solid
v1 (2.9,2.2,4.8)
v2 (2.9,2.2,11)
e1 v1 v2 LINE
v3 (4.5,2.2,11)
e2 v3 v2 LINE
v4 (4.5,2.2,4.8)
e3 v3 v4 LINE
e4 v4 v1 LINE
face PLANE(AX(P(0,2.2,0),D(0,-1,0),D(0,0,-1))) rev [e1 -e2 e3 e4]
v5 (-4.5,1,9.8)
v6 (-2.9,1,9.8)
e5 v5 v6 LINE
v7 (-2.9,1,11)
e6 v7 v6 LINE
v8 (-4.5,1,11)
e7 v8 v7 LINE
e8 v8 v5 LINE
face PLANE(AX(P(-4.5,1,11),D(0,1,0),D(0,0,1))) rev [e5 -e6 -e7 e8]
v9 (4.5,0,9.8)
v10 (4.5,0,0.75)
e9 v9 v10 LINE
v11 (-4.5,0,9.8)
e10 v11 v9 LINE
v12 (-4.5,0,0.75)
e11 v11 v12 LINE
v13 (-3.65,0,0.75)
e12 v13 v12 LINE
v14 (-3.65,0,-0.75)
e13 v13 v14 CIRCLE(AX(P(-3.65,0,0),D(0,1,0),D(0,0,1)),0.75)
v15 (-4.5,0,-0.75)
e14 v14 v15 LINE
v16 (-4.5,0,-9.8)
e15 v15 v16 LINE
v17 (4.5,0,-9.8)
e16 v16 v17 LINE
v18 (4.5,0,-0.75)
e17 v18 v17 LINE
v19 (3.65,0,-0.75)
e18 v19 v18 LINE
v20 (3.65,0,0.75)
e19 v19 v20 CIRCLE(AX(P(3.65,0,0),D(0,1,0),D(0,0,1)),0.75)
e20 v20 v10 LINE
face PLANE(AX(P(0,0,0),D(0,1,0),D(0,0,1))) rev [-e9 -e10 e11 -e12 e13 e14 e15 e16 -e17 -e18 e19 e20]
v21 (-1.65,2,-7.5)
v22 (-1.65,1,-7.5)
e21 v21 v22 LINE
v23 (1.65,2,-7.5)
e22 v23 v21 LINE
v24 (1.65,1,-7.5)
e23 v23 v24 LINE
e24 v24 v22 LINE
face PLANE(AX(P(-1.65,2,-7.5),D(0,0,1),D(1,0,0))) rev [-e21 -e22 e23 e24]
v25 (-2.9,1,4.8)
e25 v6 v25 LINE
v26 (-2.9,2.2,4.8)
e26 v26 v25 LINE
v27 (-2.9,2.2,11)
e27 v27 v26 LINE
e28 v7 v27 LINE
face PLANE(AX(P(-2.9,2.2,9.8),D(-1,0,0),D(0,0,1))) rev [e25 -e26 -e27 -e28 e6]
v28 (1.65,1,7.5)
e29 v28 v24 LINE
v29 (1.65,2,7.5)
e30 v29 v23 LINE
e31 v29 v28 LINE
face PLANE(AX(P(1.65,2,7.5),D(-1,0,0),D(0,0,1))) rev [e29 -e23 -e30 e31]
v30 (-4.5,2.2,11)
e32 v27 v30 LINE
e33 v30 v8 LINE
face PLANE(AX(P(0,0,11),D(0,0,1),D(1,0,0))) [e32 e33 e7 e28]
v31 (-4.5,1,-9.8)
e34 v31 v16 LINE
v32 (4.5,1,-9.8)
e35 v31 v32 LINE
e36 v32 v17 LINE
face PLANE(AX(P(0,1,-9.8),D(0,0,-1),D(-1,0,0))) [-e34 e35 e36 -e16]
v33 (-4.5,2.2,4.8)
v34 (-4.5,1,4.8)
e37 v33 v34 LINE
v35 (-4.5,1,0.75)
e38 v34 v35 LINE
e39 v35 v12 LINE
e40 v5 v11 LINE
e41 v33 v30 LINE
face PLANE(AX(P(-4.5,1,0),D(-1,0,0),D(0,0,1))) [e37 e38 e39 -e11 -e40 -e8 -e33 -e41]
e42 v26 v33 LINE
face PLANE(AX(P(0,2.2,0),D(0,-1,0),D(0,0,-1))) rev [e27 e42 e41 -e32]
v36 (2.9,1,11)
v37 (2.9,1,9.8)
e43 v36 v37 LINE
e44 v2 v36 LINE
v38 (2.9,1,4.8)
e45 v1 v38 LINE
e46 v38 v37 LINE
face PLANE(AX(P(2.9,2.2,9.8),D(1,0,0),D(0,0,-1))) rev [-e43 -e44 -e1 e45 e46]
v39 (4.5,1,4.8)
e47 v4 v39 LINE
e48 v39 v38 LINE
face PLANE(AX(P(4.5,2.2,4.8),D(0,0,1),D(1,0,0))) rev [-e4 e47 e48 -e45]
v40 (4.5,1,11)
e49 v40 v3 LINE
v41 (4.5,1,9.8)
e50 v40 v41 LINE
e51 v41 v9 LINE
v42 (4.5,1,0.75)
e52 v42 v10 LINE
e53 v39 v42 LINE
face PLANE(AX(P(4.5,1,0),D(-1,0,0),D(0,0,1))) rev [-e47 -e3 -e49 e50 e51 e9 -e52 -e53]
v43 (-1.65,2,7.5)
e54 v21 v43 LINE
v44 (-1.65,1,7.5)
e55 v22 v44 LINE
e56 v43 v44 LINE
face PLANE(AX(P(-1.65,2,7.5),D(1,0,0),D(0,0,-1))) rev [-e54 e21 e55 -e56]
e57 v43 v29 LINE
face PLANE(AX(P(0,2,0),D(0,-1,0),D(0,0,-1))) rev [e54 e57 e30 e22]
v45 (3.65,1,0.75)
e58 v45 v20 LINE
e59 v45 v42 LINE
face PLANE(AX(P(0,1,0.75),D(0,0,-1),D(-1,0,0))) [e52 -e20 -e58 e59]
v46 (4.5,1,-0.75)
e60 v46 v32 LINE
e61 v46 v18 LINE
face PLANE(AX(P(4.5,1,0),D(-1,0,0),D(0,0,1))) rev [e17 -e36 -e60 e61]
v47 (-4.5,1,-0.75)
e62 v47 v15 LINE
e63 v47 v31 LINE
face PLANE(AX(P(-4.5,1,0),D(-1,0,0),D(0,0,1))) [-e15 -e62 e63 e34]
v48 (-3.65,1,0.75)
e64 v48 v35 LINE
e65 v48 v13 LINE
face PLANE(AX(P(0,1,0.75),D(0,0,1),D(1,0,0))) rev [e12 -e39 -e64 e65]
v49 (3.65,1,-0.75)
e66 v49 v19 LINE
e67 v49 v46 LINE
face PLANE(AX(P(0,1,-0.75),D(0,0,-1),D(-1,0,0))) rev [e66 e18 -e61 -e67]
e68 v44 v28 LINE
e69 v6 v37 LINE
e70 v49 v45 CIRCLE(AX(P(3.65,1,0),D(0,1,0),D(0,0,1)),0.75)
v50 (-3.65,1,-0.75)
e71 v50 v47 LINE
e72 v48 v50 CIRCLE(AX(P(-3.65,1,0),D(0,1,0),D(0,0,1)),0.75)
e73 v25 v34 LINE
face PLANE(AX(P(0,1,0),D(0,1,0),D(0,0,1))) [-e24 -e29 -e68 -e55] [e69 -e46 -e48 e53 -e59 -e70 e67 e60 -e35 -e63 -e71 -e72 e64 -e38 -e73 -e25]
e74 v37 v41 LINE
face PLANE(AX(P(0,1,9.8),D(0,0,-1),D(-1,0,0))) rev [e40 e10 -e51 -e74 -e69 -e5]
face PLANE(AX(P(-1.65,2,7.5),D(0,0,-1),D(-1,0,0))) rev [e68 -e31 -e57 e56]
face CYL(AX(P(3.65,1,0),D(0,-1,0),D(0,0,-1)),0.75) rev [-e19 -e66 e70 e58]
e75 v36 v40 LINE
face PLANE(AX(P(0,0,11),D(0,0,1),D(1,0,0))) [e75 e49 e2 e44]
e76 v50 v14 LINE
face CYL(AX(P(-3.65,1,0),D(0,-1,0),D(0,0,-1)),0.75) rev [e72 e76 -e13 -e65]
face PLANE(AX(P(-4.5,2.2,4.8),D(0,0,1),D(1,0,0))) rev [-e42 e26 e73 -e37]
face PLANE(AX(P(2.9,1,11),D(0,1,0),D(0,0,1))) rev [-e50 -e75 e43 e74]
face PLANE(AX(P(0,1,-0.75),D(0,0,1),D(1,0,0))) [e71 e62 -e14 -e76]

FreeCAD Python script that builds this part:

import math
import FreeCAD as App
import Part
import Sketcher
from FreeCAD import Vector


def add_polygon(sketch, points):
    """Adds a closed chain of lines whose ends are joined by coincident constraints."""
    first, n = sketch.GeometryCount, len(points)
    for a, b in zip(points, points[1:] + points[:1]):
        sketch.addGeometry(Part.LineSegment(App.Vector(*a, 0), App.Vector(*b, 0)), False)
    for i in range(n):
        sketch.addConstraint(Sketcher.Constraint("Coincident", first + i, 2, first + (i + 1) % n, 1))

doc = App.newDocument("Part")
params = doc.addObject("Spreadsheet::Sheet", "Params")
for row, (alias, value) in enumerate([
    ("sketch1_width", "9 mm"),
    ("sketch1_radius", "0.75 mm"),
    ("sketch1_width2", "0.85 mm"),
    ("sketch1_height", "9.05 mm"),
    ("pad1_length", "1 mm"),
    ("sketch2_height", "15 mm"),
    ("sketch2_width", "3.3 mm"),
    ("pad2_length", "1 mm"),
    ("sketch3_height", "5 mm"),
    ("sketch3_width", "1.6 mm"),
    ("pad3_length", "1.2 mm"),
    ("sketch4_width", "1.6 mm"),
    ("sketch4_height", "1.2 mm"),
    ("pad4_length", "1.2 mm"),
], start=1):
    params.set(f"A{row}", alias)
    params.set(f"B{row}", "=" + value)
    params.setAlias(f"B{row}", alias)

body = doc.addObject("PartDesign::Body", "Body")

# Sketch on XZ plane
sketch1 = body.newObject("Sketcher::SketchObject", "Sketch")
sketch1.AttachmentSupport = (doc.getObject("XZ_Plane"), [""])
sketch1.MapMode = "FlatFace"
sketch1.addGeometry([
    Part.LineSegment(Vector(-4.5, 0.8, 0), Vector(-4.5, 9.8, 0)),  # 0
    Part.LineSegment(Vector(-4.5, 9.8, 0), Vector(4.5, 9.8, 0)),  # 1
    Part.LineSegment(Vector(4.5, 9.8, 0), Vector(4.5, 0.8, 0)),  # 2
    Part.LineSegment(Vector(4.5, 0.8, 0), Vector(3.6, 0.8, 0)),  # 3
    Part.ArcOfCircle(Part.Circle(Vector(3.6, 0, 0), Vector(0, 0, 1), 0.8), math.radians(90), math.radians(270)),  # 4
    Part.LineSegment(Vector(3.6, -0.8, 0), Vector(4.5, -0.8, 0)),  # 5
    Part.LineSegment(Vector(4.5, -0.8, 0), Vector(4.5, -9.8, 0)),  # 6
    Part.LineSegment(Vector(4.5, -9.8, 0), Vector(-4.5, -9.8, 0)),  # 7
    Part.LineSegment(Vector(-4.5, -9.8, 0), Vector(-4.5, -0.8, 0)),  # 8
    Part.LineSegment(Vector(-4.5, -0.8, 0), Vector(-3.6, -0.8, 0)),  # 9
    Part.ArcOfCircle(Part.Circle(Vector(-3.6, 0, 0), Vector(0, 0, 1), 0.8), math.radians(-90), math.radians(0)),  # 10
    Part.ArcOfCircle(Part.Circle(Vector(-3.6, 0, 0), Vector(0, 0, 1), 0.8), math.radians(0), math.radians(90)),  # 11
    Part.LineSegment(Vector(-3.6, 0.8, 0), Vector(-4.5, 0.8, 0)),  # 12
], False)
sketch1.addConstraint([
    Sketcher.Constraint("Coincident", 0, 2, 1, 1),
    Sketcher.Constraint("Coincident", 1, 2, 2, 1),
    Sketcher.Constraint("Coincident", 2, 2, 3, 1),
    Sketcher.Constraint("Tangent", 3, 2, 4, 1),
    Sketcher.Constraint("Tangent", 4, 2, 5, 1),
    Sketcher.Constraint("Coincident", 5, 2, 6, 1),
    Sketcher.Constraint("Coincident", 6, 2, 7, 1),
    Sketcher.Constraint("Coincident", 7, 2, 8, 1),
    Sketcher.Constraint("Coincident", 8, 2, 9, 1),
    Sketcher.Constraint("Tangent", 9, 2, 10, 1),
    Sketcher.Constraint("Tangent", 10, 2, 11, 1),
    Sketcher.Constraint("Tangent", 11, 2, 12, 1),
    Sketcher.Constraint("Coincident", 12, 2, 0, 1),
    Sketcher.Constraint("Vertical", 0),
    Sketcher.Constraint("Horizontal", 1),
    Sketcher.Constraint("Vertical", 2),
    Sketcher.Constraint("Horizontal", 3),
    Sketcher.Constraint("Horizontal", 5),
    Sketcher.Constraint("Vertical", 6),
    Sketcher.Constraint("Horizontal", 7),
    Sketcher.Constraint("Vertical", 8),
    Sketcher.Constraint("Horizontal", 9),
    Sketcher.Constraint("Horizontal", 12),
    Sketcher.Constraint("Equal", 4, 10),
    Sketcher.Constraint("Equal", 10, 11),
    Sketcher.Constraint("Symmetric", 4, 3, 10, 3, -1, 1),
    Sketcher.Constraint("Symmetric", 0, 2, 6, 2, -1, 1),
    Sketcher.Constraint("Symmetric", 5, 2, 8, 2, -2),
    Sketcher.Constraint("PointOnObject", 10, 2, -1),
    Sketcher.Constraint("Vertical", 2, 2, 5, 2),
    Sketcher.Constraint("DistanceX", 1, 1, 1, 2, 9.0),
    Sketcher.Constraint("Radius", 4, 0.75),
    Sketcher.Constraint("DistanceX", 3, 2, 3, 1, 0.85),
    Sketcher.Constraint("DistanceY", 0, 1, 0, 2, 9.05),
])
sketch1.setExpression("Constraints[30]", "Params.sketch1_width")
sketch1.setExpression("Constraints[31]", "Params.sketch1_radius")
sketch1.setExpression("Constraints[32]", "Params.sketch1_width2")
sketch1.setExpression("Constraints[33]", "Params.sketch1_height")
pad1 = body.newObject("PartDesign::Pad", "Pad")
pad1.Profile = sketch1
pad1.setExpression("Length", "Params.pad1_length")
pad1.Reversed = True

# Sketch on XZ plane
sketch2 = body.newObject("Sketcher::SketchObject", "Sketch001")
sketch2.AttachmentSupport = (doc.getObject("XZ_Plane"), [""])
sketch2.MapMode = "FlatFace"
sketch2.AttachmentOffset = App.Placement(Vector(0, 0, -1), App.Rotation())
add_polygon(sketch2, [(-1.6, -7.5), (-1.6, 7.5), (1.6, 7.5), (1.6, -7.5)])  # lines 0-3
sketch2.addConstraint([
    Sketcher.Constraint("Vertical", 0),
    Sketcher.Constraint("Horizontal", 1),
    Sketcher.Constraint("Vertical", 2),
    Sketcher.Constraint("Horizontal", 3),
    Sketcher.Constraint("Symmetric", 0, 2, 2, 2, -1, 1),
    Sketcher.Constraint("DistanceY", 0, 1, 0, 2, 15.0),
    Sketcher.Constraint("DistanceX", 1, 1, 1, 2, 3.3),
])
sketch2.setExpression("Constraints[9]", "Params.sketch2_height")
sketch2.setExpression("Constraints[10]", "Params.sketch2_width")
pad2 = body.newObject("PartDesign::Pad", "Pad001")
pad2.Profile = sketch2
pad2.setExpression("Length", "Params.pad2_length")
pad2.Reversed = True

# Sketch on XZ plane
sketch3 = body.newObject("Sketcher::SketchObject", "Sketch002")
sketch3.AttachmentSupport = (doc.getObject("XZ_Plane"), [""])
sketch3.MapMode = "FlatFace"
sketch3.AttachmentOffset = App.Placement(Vector(0, 0, -1), App.Rotation())
add_polygon(sketch3, [(-4.5, 4.8), (-4.5, 9.8), (-2.9, 9.8), (-2.9, 4.8)])  # lines 0-3
add_polygon(sketch3, [(2.9, 4.8), (2.9, 9.8), (4.5, 9.8), (4.5, 4.8)])  # lines 4-7
sketch3.addConstraint([
    Sketcher.Constraint("Vertical", 0),
    Sketcher.Constraint("Horizontal", 1),
    Sketcher.Constraint("Vertical", 2),
    Sketcher.Constraint("Horizontal", 3),
    Sketcher.Constraint("Vertical", 4),
    Sketcher.Constraint("Horizontal", 5),
    Sketcher.Constraint("Vertical", 6),
    Sketcher.Constraint("Horizontal", 7),
    Sketcher.Constraint("Symmetric", 1, 2, 4, 2, -2),
    Sketcher.Constraint("Symmetric", 3, 2, 6, 2, -2),
    Sketcher.Constraint("DistanceY", 0, 1, 0, 2, 5.0),
    Sketcher.Constraint("DistanceX", 1, 1, 1, 2, 1.6),
    Sketcher.Constraint("DistanceX", 0, 2, 5, 2, 9.0),
    Sketcher.Constraint("DistanceY", -1, 1, 0, 2, 9.8),
])
sketch3.setExpression("Constraints[18]", "Params.sketch3_height")
sketch3.setExpression("Constraints[19]", "Params.sketch3_width")
pad3 = body.newObject("PartDesign::Pad", "Pad002")
pad3.Profile = sketch3
pad3.setExpression("Length", "Params.pad3_length")
pad3.Reversed = True

# Sketch on XY plane
sketch4 = body.newObject("Sketcher::SketchObject", "Sketch003")
sketch4.AttachmentSupport = (doc.getObject("XY_Plane"), [""])
sketch4.MapMode = "FlatFace"
sketch4.AttachmentOffset = App.Placement(Vector(0, 0, 9.8), App.Rotation())
add_polygon(sketch4, [(-4.5, 2.2), (-4.5, 1), (-2.9, 1), (-2.9, 2.2)])  # lines 0-3
add_polygon(sketch4, [(2.9, 2.2), (2.9, 1), (4.5, 1), (4.5, 2.2)])  # lines 4-7
sketch4.addConstraint([
    Sketcher.Constraint("Vertical", 0),
    Sketcher.Constraint("Horizontal", 1),
    Sketcher.Constraint("Vertical", 2),
    Sketcher.Constraint("Horizontal", 3),
    Sketcher.Constraint("Vertical", 4),
    Sketcher.Constraint("Horizontal", 5),
    Sketcher.Constraint("Vertical", 6),
    Sketcher.Constraint("Horizontal", 7),
    Sketcher.Constraint("Symmetric", 1, 2, 4, 2, -2),
    Sketcher.Constraint("Symmetric", 3, 2, 6, 2, -2),
    Sketcher.Constraint("DistanceX", 1, 1, 1, 2, 1.6),
    Sketcher.Constraint("DistanceY", 0, 2, 0, 1, 1.2),
    Sketcher.Constraint("DistanceY", -1, 1, 0, 2, 1.0),
    Sketcher.Constraint("DistanceX", 0, 2, 5, 2, 9.0),
])
sketch4.setExpression("Constraints[18]", "Params.sketch4_width")
sketch4.setExpression("Constraints[19]", "Params.sketch4_height")
pad4 = body.newObject("PartDesign::Pad", "Pad003")
pad4.Profile = sketch4
pad4.setExpression("Length", "Params.pad4_length")

doc.recompute()
